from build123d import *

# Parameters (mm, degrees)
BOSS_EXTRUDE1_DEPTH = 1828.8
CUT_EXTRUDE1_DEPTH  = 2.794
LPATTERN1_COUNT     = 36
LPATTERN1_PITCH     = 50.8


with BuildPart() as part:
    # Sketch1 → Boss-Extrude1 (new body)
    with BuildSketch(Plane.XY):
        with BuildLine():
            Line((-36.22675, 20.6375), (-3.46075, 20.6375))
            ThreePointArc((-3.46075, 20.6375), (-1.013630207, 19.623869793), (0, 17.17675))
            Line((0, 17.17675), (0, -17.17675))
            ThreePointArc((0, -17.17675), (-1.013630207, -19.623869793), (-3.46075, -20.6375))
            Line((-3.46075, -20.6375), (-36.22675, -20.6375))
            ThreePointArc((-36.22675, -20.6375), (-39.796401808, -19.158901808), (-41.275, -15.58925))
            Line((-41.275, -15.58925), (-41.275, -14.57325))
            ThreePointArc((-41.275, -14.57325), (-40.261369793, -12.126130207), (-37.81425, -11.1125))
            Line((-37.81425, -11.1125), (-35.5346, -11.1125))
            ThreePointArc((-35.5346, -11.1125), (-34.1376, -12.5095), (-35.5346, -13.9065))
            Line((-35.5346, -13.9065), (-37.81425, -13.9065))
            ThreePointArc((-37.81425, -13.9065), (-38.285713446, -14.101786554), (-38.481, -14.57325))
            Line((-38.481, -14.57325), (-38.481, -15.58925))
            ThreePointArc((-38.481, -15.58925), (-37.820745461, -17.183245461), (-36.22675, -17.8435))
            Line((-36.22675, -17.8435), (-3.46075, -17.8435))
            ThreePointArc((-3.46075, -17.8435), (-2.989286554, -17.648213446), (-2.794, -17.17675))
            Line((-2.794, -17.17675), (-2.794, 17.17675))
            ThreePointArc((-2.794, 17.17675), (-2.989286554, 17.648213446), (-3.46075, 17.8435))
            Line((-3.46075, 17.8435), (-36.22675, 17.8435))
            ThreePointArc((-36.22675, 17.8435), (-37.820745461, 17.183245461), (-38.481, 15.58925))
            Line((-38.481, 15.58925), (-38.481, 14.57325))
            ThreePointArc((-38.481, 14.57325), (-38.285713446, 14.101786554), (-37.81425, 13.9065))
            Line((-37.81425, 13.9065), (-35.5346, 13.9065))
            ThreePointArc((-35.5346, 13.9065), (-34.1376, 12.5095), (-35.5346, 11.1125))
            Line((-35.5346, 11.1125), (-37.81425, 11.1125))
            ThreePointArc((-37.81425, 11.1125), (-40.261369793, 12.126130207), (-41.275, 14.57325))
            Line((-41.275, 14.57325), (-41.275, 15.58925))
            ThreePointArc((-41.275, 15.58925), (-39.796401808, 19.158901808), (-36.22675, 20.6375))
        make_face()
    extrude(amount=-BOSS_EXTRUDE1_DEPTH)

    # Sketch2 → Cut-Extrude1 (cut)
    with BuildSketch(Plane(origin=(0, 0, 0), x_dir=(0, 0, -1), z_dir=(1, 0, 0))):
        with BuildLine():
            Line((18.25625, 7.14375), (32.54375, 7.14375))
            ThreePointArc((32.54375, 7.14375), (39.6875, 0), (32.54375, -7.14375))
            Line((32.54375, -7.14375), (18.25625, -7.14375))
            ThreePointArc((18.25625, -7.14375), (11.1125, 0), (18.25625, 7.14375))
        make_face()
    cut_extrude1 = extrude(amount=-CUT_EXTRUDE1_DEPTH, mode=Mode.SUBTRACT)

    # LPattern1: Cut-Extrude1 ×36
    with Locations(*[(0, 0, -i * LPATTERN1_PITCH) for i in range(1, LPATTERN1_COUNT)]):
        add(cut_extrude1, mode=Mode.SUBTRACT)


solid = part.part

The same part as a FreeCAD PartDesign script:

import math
import FreeCAD as App
import Part
import Sketcher
Q = App.Units.Quantity

doc = App.newDocument("Part")
params = doc.addObject("Spreadsheet::Sheet", "Params")
for row, (alias, value) in enumerate([
    ("sketch1_radius", "0.055 in"),
    ("sketch1_width", "1.29 in"),
    ("sketch1_height", "0.04 in"),
    ("pad1_length", "72 in"),
    ("sketch2_radius", "0.28125 in"),
    ("sketch2_height", "0.5625 in"),
    ("pocket1_length", "0.11 in"),
    ("linearpattern_pitch", "2 in"),
], start=1):
    params.set(f"A{row}", alias)
    params.set(f"B{row}", "=" + value)
    params.setAlias(f"B{row}", alias)

body = doc.addObject("PartDesign::Body", "Body")

sketch1 = body.newObject("Sketcher::SketchObject", "Sketch")
sketch1.AttachmentSupport = (doc.getObject("XY_Plane"), [""])
sketch1.MapMode = "FlatFace"
sketch1.addGeometry(Part.LineSegment(App.Vector(-3.46075, 20.6375, 0), App.Vector(-36.22675, 20.6375, 0)), False)
sketch1.addGeometry(Part.ArcOfCircle(Part.Circle(App.Vector(-36.22675, 15.58925, 0), App.Vector(0, 0, 1), 5.04825), math.radians(90), math.radians(180)), False)
sketch1.addGeometry(Part.LineSegment(App.Vector(-41.275, 15.58925, 0), App.Vector(-41.275, 14.57325, 0)), False)
sketch1.addGeometry(Part.ArcOfCircle(Part.Circle(App.Vector(-37.81425, 14.57325, 0), App.Vector(0, 0, 1), 3.46075), math.radians(180), math.radians(270)), False)
sketch1.addGeometry(Part.LineSegment(App.Vector(-37.81425, 11.1125, 0), App.Vector(-35.5346, 11.1125, 0)), False)
sketch1.addGeometry(Part.ArcOfCircle(Part.Circle(App.Vector(-35.5346, 12.5095, 0), App.Vector(0, 0, 1), 1.397), math.radians(-90), math.radians(90)), False)
sketch1.addGeometry(Part.LineSegment(App.Vector(-35.5346, 13.9065, 0), App.Vector(-37.81425, 13.9065, 0)), False)
sketch1.addGeometry(Part.ArcOfCircle(Part.Circle(App.Vector(-37.81425, 14.57325, 0), App.Vector(0, 0, 1), 0.66675), math.radians(-180), math.radians(-90)), False)
sketch1.addGeometry(Part.LineSegment(App.Vector(-38.481, 14.57325, 0), App.Vector(-38.481, 15.58925, 0)), False)
sketch1.addGeometry(Part.ArcOfCircle(Part.Circle(App.Vector(-36.22675, 15.58925, 0), App.Vector(0, 0, 1), 2.25425), math.radians(90), math.radians(180)), False)
sketch1.addGeometry(Part.LineSegment(App.Vector(-36.22675, 17.8435, 0), App.Vector(-3.46075, 17.8435, 0)), False)
sketch1.addGeometry(Part.ArcOfCircle(Part.Circle(App.Vector(-3.46075, 17.17675, 0), App.Vector(0, 0, 1), 0.66675), math.radians(0), math.radians(90)), False)
sketch1.addGeometry(Part.LineSegment(App.Vector(-2.794, 17.17675, 0), App.Vector(-2.794, -17.17675, 0)), False)
sketch1.addGeometry(Part.ArcOfCircle(Part.Circle(App.Vector(-3.46075, -17.17675, 0), App.Vector(0, 0, 1), 0.66675), math.radians(-90), math.radians(0)), False)
sketch1.addGeometry(Part.LineSegment(App.Vector(-3.46075, -17.8435, 0), App.Vector(-36.22675, -17.8435, 0)), False)
sketch1.addGeometry(Part.ArcOfCircle(Part.Circle(App.Vector(-36.22675, -15.58925, 0), App.Vector(0, 0, 1), 2.25425), math.radians(-180), math.radians(-90)), False)
sketch1.addGeometry(Part.LineSegment(App.Vector(-38.481, -15.58925, 0), App.Vector(-38.481, -14.57325, 0)), False)
sketch1.addGeometry(Part.ArcOfCircle(Part.Circle(App.Vector(-37.81425, -14.57325, 0), App.Vector(0, 0, 1), 0.66675), math.radians(90), math.radians(180)), False)
sketch1.addGeometry(Part.LineSegment(App.Vector(-37.81425, -13.9065, 0), App.Vector(-35.5346, -13.9065, 0)), False)
sketch1.addGeometry(Part.ArcOfCircle(Part.Circle(App.Vector(-35.5346, -12.5095, 0), App.Vector(0, 0, 1), 1.397), math.radians(-90), math.radians(90)), False)
sketch1.addGeometry(Part.LineSegment(App.Vector(-35.5346, -11.1125, 0), App.Vector(-37.81425, -11.1125, 0)), False)
sketch1.addGeometry(Part.ArcOfCircle(Part.Circle(App.Vector(-37.81425, -14.57325, 0), App.Vector(0, 0, 1), 3.46075), math.radians(90), math.radians(180)), False)
sketch1.addGeometry(Part.LineSegment(App.Vector(-41.275, -14.57325, 0), App.Vector(-41.275, -15.58925, 0)), False)
sketch1.addGeometry(Part.ArcOfCircle(Part.Circle(App.Vector(-36.22675, -15.58925, 0), App.Vector(0, 0, 1), 5.04825), math.radians(180), math.radians(270)), False)
sketch1.addGeometry(Part.LineSegment(App.Vector(-36.22675, -20.6375, 0), App.Vector(-3.46075, -20.6375, 0)), False)
sketch1.addGeometry(Part.ArcOfCircle(Part.Circle(App.Vector(-3.46075, -17.17675, 0), App.Vector(0, 0, 1), 3.46075), math.radians(-90), math.radians(0)), False)
sketch1.addGeometry(Part.LineSegment(App.Vector(0, -17.17675, 0), App.Vector(0, 17.17675, 0)), False)
sketch1.addGeometry(Part.ArcOfCircle(Part.Circle(App.Vector(-3.46075, 17.17675, 0), App.Vector(0, 0, 1), 3.46075), math.radians(0), math.radians(90)), False)
sketch1.addConstraint(Sketcher.Constraint("Tangent", 0, 2, 1, 1))
sketch1.addConstraint(Sketcher.Constraint("Tangent", 1, 2, 2, 1))
sketch1.addConstraint(Sketcher.Constraint("Tangent", 2, 2, 3, 1))
sketch1.addConstraint(Sketcher.Constraint("Tangent", 3, 2, 4, 1))
sketch1.addConstraint(Sketcher.Constraint("Tangent", 4, 2, 5, 1))
sketch1.addConstraint(Sketcher.Constraint("Tangent", 5, 2, 6, 1))
sketch1.addConstraint(Sketcher.Constraint("Tangent", 6, 2, 7, 2))
sketch1.addConstraint(Sketcher.Constraint("Tangent", 7, 1, 8, 1))
sketch1.addConstraint(Sketcher.Constraint("Tangent", 8, 2, 9, 2))
sketch1.addConstraint(Sketcher.Constraint("Tangent", 9, 1, 10, 1))
sketch1.addConstraint(Sketcher.Constraint("Tangent", 10, 2, 11, 2))
sketch1.addConstraint(Sketcher.Constraint("Tangent", 11, 1, 12, 1))
sketch1.addConstraint(Sketcher.Constraint("Tangent", 12, 2, 13, 2))
sketch1.addConstraint(Sketcher.Constraint("Tangent", 13, 1, 14, 1))
sketch1.addConstraint(Sketcher.Constraint("Tangent", 14, 2, 15, 2))
sketch1.addConstraint(Sketcher.Constraint("Tangent", 15, 1, 16, 1))
sketch1.addConstraint(Sketcher.Constraint("Tangent", 16, 2, 17, 2))
sketch1.addConstraint(Sketcher.Constraint("Tangent", 17, 1, 18, 1))
sketch1.addConstraint(Sketcher.Constraint("Tangent", 18, 2, 19, 1))
sketch1.addConstraint(Sketcher.Constraint("Tangent", 19, 2, 20, 1))
sketch1.addConstraint(Sketcher.Constraint("Tangent", 20, 2, 21, 1))
sketch1.addConstraint(Sketcher.Constraint("Tangent", 21, 2, 22, 1))
sketch1.addConstraint(Sketcher.Constraint("Tangent", 22, 2, 23, 1))
sketch1.addConstraint(Sketcher.Constraint("Tangent", 23, 2, 24, 1))
sketch1.addConstraint(Sketcher.Constraint("Tangent", 24, 2, 25, 1))
sketch1.addConstraint(Sketcher.Constraint("Tangent", 25, 2, 26, 1))
sketch1.addConstraint(Sketcher.Constraint("Tangent", 26, 2, 27, 1))
sketch1.addConstraint(Sketcher.Constraint("Tangent", 27, 2, 0, 1))
sketch1.addConstraint(Sketcher.Constraint("Horizontal", 0))
sketch1.addConstraint(Sketcher.Constraint("Vertical", 2))
sketch1.addConstraint(Sketcher.Constraint("Horizontal", 4))
sketch1.addConstraint(Sketcher.Constraint("Horizontal", 6))
sketch1.addConstraint(Sketcher.Constraint("Vertical", 8))
sketch1.addConstraint(Sketcher.Constraint("Horizontal", 10))
sketch1.addConstraint(Sketcher.Constraint("Vertical", 12))
sketch1.addConstraint(Sketcher.Constraint("Horizontal", 14))
sketch1.addConstraint(Sketcher.Constraint("Vertical", 16))
sketch1.addConstraint(Sketcher.Constraint("Horizontal", 18))
sketch1.addConstraint(Sketcher.Constraint("Horizontal", 20))
sketch1.addConstraint(Sketcher.Constraint("Vertical", 22))
sketch1.addConstraint(Sketcher.Constraint("Horizontal", 24))
sketch1.addConstraint(Sketcher.Constraint("Vertical", 26))
sketch1.addConstraint(Sketcher.Constraint("Coincident", 7, 3, 3, 3))
sketch1.addConstraint(Sketcher.Constraint("Coincident", 9, 3, 1, 3))
sketch1.addConstraint(Sketcher.Constraint("Coincident", 21, 3, 17, 3))
sketch1.addConstraint(Sketcher.Constraint("Coincident", 23, 3, 15, 3))
sketch1.addConstraint(Sketcher.Constraint("Coincident", 25, 3, 13, 3))
sketch1.addConstraint(Sketcher.Constraint("Coincident", 27, 3, 11, 3))
sketch1.addConstraint(Sketcher.Constraint("Equal", 7, 11))
sketch1.addConstraint(Sketcher.Constraint("Equal", 11, 13))
sketch1.addConstraint(Sketcher.Constraint("Equal", 9, 15))
sketch1.addConstraint(Sketcher.Constraint("Equal", 13, 17))
sketch1.addConstraint(Sketcher.Constraint("Symmetric", 25, 2, 26, 2, -1, 1))
sketch1.addConstraint(Sketcher.Constraint("Symmetric", 3, 3, 17, 3, -1))
sketch1.addConstraint(Sketcher.Constraint("Vertical", 5, 3, 19, 3))
sketch1.addConstraint(Sketcher.Constraint("Radius", 5, Q("0.055 in")))
sketch1.addConstraint(Sketcher.Constraint("DistanceX", 0, 2, 0, 1, Q("1.29 in")))
sketch1.addConstraint(Sketcher.Constraint("DistanceY", 2, 2, 2, 1, Q("0.04 in")))
sketch1.addConstraint(Sketcher.Constraint("DistanceY", 13, 3, 9, 3, Q("1.29 in")))
sketch1.addConstraint(Sketcher.Constraint("DistanceY", 5, 3, 0, 2, Q("0.32 in")))
sketch1.addConstraint(Sketcher.Constraint("DistanceY", 12, 2, 12, 1, Q("1.3525 in")))
sketch1.addConstraint(Sketcher.Constraint("DistanceX", 5, 3, -1, 1, Q("1.399 in")))
sketch1.setExpression("Constraints[55]", "Params.sketch1_radius")
sketch1.setExpression("Constraints[56]", "Params.sketch1_width")
sketch1.setExpression("Constraints[57]", "Params.sketch1_height")
pad1 = body.newObject("PartDesign::Pad", "Pad")
pad1.Profile = sketch1
pad1.setExpression("Length", "Params.pad1_length")
pad1.Reversed = True

sketch2 = body.newObject("Sketcher::SketchObject", "Sketch001")
sketch2.AttachmentSupport = (doc.getObject("YZ_Plane"), [""])
sketch2.MapMode = "FlatFace"
sketch2.addGeometry(Part.LineSegment(App.Vector(7.14375, -32.54375, 0), App.Vector(7.14375, -18.25625, 0)), False)
sketch2.addGeometry(Part.ArcOfCircle(Part.Circle(App.Vector(0, -18.25625, 0), App.Vector(0, 0, 1), 7.14375), math.radians(0), math.radians(180)), False)
sketch2.addGeometry(Part.LineSegment(App.Vector(-7.14375, -18.25625, 0), App.Vector(-7.14375, -32.54375, 0)), False)
sketch2.addGeometry(Part.ArcOfCircle(Part.Circle(App.Vector(0, -32.54375, 0), App.Vector(0, 0, 1), 7.14375), math.radians(180), math.radians(360)), False)
sketch2.addConstraint(Sketcher.Constraint("Tangent", 0, 2, 1, 1))
sketch2.addConstraint(Sketcher.Constraint("Tangent", 1, 2, 2, 1))
sketch2.addConstraint(Sketcher.Constraint("Tangent", 2, 2, 3, 1))
sketch2.addConstraint(Sketcher.Constraint("Tangent", 3, 2, 0, 1))
sketch2.addConstraint(Sketcher.Constraint("Vertical", 0))
sketch2.addConstraint(Sketcher.Constraint("Vertical", 2))
sketch2.addConstraint(Sketcher.Constraint("PointOnObject", 1, 3, -2))
sketch2.addConstraint(Sketcher.Constraint("Radius", 1, Q("0.28125 in")))
sketch2.addConstraint(Sketcher.Constraint("DistanceY", 0, 1, 0, 2, Q("0.5625 in")))
sketch2.addConstraint(Sketcher.Constraint("DistanceY", 1, 3, -1, 1, Q("0.71875 in")))
sketch2.setExpression("Constraints[7]", "Params.sketch2_radius")
sketch2.setExpression("Constraints[8]", "Params.sketch2_height")
pocket1 = body.newObject("PartDesign::Pocket", "Pocket")
pocket1.Profile = sketch2
pocket1.setExpression("Length", "Params.pocket1_length")
doc.recompute()

linearpattern = body.newObject("PartDesign::LinearPattern", "LinearPattern")
linearpattern.Originals = [pocket1]
linearpattern.Direction = (doc.getObject("Z_Axis"), [""])
linearpattern.Mode = "offset"
linearpattern.setExpression("Offset", "Params.linearpattern_pitch")
linearpattern.Occurrences = 36
linearpattern.Reversed = True
body.Tip = linearpattern

doc.recompute()
